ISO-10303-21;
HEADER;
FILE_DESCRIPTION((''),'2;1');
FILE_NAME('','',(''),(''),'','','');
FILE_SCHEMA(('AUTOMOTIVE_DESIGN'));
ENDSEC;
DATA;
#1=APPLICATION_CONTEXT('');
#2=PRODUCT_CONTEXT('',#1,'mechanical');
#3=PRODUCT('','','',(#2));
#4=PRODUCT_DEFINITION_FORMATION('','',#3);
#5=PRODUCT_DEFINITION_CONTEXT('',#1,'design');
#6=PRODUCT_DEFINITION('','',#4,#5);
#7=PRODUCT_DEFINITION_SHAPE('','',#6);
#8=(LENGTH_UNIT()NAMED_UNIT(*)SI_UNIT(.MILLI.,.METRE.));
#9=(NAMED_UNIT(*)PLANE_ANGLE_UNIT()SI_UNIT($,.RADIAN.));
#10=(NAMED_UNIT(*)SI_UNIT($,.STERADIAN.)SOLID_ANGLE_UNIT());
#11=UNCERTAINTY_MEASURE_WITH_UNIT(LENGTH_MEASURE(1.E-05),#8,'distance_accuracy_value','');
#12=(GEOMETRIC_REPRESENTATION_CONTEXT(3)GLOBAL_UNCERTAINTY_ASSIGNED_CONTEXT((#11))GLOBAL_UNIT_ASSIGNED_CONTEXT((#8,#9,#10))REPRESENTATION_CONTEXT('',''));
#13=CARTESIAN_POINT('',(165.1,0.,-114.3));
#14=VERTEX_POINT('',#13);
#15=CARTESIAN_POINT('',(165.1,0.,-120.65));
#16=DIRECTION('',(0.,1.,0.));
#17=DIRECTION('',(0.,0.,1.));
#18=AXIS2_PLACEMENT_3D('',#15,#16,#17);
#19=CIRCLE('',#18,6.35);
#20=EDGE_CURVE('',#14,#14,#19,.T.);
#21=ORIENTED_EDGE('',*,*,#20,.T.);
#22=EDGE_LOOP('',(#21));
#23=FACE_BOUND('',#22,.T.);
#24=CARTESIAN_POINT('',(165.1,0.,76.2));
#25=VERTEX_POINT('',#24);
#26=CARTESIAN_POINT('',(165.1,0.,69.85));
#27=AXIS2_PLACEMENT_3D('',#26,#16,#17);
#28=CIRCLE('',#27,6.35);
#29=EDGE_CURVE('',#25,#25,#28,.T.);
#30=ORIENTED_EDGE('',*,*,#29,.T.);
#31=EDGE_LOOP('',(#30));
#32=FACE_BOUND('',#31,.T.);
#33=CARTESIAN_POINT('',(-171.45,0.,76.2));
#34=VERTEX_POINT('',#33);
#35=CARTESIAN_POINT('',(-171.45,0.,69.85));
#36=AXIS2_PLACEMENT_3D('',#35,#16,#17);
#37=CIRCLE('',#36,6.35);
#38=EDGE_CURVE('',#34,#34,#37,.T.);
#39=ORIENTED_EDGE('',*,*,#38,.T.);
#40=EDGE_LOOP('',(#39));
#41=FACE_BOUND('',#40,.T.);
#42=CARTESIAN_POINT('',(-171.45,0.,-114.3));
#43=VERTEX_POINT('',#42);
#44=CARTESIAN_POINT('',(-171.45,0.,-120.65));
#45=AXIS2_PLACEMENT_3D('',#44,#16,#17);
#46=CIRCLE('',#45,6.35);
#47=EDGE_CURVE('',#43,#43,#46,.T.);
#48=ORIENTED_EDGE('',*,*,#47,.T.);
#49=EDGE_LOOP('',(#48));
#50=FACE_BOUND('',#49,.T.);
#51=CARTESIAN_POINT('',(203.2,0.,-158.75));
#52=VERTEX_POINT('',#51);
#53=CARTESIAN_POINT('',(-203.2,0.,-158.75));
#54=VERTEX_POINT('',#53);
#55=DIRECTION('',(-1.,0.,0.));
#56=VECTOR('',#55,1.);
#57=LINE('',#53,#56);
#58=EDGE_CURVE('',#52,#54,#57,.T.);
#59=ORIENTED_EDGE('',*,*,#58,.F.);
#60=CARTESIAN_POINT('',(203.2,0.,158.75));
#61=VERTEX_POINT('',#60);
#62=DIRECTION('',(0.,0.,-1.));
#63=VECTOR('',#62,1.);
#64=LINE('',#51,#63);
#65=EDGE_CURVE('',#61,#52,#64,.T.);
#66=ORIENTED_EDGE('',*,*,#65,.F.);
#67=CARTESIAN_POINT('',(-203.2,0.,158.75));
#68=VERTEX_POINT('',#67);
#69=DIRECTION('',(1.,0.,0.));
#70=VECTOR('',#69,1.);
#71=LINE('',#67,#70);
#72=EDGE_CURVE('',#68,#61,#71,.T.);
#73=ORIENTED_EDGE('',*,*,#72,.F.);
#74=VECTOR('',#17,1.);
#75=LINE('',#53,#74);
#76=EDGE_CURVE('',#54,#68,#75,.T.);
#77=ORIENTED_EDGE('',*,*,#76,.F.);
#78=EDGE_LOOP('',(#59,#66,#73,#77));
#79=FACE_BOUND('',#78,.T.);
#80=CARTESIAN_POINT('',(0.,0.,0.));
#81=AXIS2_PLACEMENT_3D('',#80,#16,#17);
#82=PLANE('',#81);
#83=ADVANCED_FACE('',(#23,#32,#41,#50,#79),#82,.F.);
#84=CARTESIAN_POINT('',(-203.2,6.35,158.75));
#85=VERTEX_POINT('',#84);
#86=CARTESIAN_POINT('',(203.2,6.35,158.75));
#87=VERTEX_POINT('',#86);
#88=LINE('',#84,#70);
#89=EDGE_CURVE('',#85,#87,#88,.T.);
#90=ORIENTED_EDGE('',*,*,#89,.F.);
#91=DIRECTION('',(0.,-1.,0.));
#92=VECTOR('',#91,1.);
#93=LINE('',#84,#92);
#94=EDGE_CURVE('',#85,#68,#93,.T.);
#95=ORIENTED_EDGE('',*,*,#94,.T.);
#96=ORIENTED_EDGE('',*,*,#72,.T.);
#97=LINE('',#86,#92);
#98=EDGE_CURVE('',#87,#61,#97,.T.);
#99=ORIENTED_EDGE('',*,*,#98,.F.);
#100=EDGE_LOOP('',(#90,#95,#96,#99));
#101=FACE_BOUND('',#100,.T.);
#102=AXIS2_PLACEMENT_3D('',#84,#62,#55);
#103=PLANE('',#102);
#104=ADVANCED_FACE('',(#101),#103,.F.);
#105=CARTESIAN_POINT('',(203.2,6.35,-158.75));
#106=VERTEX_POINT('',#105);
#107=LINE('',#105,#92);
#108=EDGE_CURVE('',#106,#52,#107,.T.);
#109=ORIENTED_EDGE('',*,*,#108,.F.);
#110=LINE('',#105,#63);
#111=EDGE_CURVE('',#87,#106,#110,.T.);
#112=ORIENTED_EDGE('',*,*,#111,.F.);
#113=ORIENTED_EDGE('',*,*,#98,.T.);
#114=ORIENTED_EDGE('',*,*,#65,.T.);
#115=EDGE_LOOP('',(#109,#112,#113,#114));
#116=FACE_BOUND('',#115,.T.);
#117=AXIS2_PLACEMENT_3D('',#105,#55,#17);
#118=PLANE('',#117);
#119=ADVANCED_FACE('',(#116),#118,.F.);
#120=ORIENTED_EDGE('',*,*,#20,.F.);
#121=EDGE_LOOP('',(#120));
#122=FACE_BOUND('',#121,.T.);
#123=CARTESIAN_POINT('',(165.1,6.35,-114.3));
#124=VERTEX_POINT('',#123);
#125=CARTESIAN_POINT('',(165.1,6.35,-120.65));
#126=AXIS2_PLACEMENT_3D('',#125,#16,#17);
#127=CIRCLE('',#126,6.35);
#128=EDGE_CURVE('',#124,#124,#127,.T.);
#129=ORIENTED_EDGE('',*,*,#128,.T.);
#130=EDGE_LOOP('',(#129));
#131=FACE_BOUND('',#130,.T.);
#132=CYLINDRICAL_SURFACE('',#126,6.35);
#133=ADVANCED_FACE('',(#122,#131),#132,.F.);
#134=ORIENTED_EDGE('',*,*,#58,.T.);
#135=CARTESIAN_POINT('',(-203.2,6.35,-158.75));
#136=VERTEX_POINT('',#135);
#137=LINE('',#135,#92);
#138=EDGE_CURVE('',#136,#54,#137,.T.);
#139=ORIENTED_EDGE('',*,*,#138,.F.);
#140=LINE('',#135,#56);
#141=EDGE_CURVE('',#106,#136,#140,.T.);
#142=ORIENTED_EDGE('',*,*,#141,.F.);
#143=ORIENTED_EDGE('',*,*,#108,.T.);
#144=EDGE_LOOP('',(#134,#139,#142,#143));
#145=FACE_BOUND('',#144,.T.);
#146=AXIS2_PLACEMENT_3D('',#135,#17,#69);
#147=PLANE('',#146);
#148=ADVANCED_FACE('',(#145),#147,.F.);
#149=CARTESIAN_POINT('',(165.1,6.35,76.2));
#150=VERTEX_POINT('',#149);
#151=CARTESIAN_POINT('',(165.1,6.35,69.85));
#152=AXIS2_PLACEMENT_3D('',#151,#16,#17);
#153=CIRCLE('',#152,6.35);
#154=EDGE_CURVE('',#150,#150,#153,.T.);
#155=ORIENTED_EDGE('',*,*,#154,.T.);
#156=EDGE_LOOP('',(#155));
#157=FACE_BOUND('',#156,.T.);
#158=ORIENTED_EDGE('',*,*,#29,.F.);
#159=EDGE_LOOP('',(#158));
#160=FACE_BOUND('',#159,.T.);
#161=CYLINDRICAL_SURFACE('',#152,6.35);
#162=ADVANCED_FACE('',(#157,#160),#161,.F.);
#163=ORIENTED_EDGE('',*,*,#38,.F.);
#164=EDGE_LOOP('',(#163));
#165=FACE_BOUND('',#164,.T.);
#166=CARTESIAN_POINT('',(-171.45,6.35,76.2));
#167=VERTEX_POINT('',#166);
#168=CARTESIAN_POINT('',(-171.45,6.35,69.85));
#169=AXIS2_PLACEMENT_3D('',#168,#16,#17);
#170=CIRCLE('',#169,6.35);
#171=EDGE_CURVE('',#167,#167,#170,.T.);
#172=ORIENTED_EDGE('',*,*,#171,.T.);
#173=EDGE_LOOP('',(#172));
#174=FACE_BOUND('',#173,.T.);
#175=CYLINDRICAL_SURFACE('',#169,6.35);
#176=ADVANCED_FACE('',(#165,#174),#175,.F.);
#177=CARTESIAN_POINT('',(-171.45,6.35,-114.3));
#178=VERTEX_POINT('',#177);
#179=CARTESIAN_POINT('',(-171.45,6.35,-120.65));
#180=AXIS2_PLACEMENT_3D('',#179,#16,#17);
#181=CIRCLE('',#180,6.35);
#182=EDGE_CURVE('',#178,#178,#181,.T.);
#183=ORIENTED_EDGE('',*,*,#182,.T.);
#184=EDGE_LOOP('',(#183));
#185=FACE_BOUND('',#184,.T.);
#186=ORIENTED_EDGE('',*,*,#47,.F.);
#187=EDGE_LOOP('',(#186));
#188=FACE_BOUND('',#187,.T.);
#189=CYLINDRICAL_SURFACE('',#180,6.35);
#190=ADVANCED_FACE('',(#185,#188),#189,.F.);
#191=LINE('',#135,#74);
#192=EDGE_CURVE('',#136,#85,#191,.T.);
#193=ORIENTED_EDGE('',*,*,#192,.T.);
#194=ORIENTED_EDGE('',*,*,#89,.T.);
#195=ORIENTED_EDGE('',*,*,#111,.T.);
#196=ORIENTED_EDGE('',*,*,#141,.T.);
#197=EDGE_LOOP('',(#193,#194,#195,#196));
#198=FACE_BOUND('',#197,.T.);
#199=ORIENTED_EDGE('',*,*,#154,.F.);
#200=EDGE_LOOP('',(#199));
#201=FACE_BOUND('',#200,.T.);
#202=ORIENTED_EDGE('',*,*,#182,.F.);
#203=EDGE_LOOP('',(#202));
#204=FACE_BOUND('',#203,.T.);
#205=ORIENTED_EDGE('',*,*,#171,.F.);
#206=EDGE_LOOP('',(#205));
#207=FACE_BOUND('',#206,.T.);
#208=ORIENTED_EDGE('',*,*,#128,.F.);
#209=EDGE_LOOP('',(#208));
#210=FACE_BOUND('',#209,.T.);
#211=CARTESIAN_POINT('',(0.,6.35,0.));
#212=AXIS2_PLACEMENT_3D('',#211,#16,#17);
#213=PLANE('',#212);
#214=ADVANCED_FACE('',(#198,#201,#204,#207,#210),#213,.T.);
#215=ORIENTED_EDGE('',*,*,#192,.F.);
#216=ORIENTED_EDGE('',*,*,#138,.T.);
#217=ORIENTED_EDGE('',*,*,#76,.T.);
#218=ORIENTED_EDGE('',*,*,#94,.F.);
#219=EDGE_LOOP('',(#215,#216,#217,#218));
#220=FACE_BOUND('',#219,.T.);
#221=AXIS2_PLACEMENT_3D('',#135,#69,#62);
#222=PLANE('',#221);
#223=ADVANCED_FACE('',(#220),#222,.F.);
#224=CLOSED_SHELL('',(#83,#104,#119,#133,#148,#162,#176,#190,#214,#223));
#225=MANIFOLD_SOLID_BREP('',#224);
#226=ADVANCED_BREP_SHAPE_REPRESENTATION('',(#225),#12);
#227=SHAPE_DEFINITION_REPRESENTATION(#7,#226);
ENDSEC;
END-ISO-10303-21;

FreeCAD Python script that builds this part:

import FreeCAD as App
import Part
import Sketcher
from FreeCAD import Vector
Q = App.Units.Quantity

doc = App.newDocument("Part")
body = doc.addObject("PartDesign::Body", "Body")

# Sketch on XZ plane
sketch1 = body.newObject("Sketcher::SketchObject", "Sketch")
sketch1.AttachmentSupport = (doc.getObject("XZ_Plane"), [""])
sketch1.MapMode = "FlatFace"
sketch1.addGeometry([
    Part.LineSegment(Vector(-203, -159, 0), Vector(-203, 159, 0)),
    Part.LineSegment(Vector(-203, 159, 0), Vector(203, 159, 0)),
    Part.LineSegment(Vector(203, 159, 0), Vector(203, -159, 0)),
    Part.LineSegment(Vector(203, -159, 0), Vector(-203, -159, 0)),
], False)
sketch1.addConstraint([
    Sketcher.Constraint("Coincident", 0, 2, 1, 1),
    Sketcher.Constraint("Coincident", 1, 2, 2, 1),
    Sketcher.Constraint("Coincident", 2, 2, 3, 1),
    Sketcher.Constraint("Coincident", 3, 2, 0, 1),
    Sketcher.Constraint("Vertical", 0),
    Sketcher.Constraint("Horizontal", 1),
    Sketcher.Constraint("Vertical", 2),
    Sketcher.Constraint("Horizontal", 3),
    Sketcher.Constraint("Symmetric", 0, 2, 2, 2, -1, 1),
    Sketcher.Constraint("DistanceX", 1, 1, 1, 2, Q("16 in")),
    Sketcher.Constraint("DistanceY", 0, 1, 0, 2, Q("12.5 in")),
])
pad1 = body.newObject("PartDesign::Pad", "Pad")
pad1.Profile = sketch1
pad1.Length = Q("0.25 in")
pad1.Reversed = True

# Sketch on XZ plane
sketch2 = body.newObject("Sketcher::SketchObject", "Sketch001")
sketch2.AttachmentSupport = (doc.getObject("XZ_Plane"), [""])
sketch2.MapMode = "FlatFace"
sketch2.AttachmentOffset = App.Placement(Vector(0, 0, -0.25 * 25.4), App.Rotation())
sketch2.addGeometry([
    Part.Circle(Vector(-171, -121, 0), Vector(0, 0, 1), 6),
    Part.Circle(Vector(165, -121, 0), Vector(0, 0, 1), 6),
    Part.Circle(Vector(165, 70, 0), Vector(0, 0, 1), 6),
    Part.Circle(Vector(-171, 70, 0), Vector(0, 0, 1), 6),
], False)
sketch2.addConstraint([
    Sketcher.Constraint("Equal", 0, 1),
    Sketcher.Constraint("Equal", 1, 2),
    Sketcher.Constraint("Equal", 2, 3),
    Sketcher.Constraint("Horizontal", 0, 3, 1, 3),
    Sketcher.Constraint("Horizontal", 2, 3, 3, 3),
    Sketcher.Constraint("Vertical", 1, 3, 2, 3),
    Sketcher.Constraint("Vertical", 0, 3, 3, 3),
    Sketcher.Constraint("Diameter", 0, Q("0.5 in")),
    Sketcher.Constraint("DistanceX", -1, 1, 1, 3, Q("6.5 in")),
    Sketcher.Constraint("DistanceY", 1, 3, 2, 3, Q("7.5 in")),
    Sketcher.Constraint("DistanceX", 0, 3, -1, 1, Q("6.75 in")),
    Sketcher.Constraint("DistanceY", 0, 3, -1, 1, Q("4.75 in")),
])
doc.recompute()
hole = body.newObject("PartDesign::Hole", "Hole")
hole.Profile = sketch2
hole.ThreadType = "None"
hole.Diameter = Q("0.5 in")
hole.DepthType = "Dimension"
hole.Depth = Q("0.5 in")
hole.DrillPoint = "Angled"
hole.DrillPointAngle = 118
hole.Reversed = True

doc.recompute()
